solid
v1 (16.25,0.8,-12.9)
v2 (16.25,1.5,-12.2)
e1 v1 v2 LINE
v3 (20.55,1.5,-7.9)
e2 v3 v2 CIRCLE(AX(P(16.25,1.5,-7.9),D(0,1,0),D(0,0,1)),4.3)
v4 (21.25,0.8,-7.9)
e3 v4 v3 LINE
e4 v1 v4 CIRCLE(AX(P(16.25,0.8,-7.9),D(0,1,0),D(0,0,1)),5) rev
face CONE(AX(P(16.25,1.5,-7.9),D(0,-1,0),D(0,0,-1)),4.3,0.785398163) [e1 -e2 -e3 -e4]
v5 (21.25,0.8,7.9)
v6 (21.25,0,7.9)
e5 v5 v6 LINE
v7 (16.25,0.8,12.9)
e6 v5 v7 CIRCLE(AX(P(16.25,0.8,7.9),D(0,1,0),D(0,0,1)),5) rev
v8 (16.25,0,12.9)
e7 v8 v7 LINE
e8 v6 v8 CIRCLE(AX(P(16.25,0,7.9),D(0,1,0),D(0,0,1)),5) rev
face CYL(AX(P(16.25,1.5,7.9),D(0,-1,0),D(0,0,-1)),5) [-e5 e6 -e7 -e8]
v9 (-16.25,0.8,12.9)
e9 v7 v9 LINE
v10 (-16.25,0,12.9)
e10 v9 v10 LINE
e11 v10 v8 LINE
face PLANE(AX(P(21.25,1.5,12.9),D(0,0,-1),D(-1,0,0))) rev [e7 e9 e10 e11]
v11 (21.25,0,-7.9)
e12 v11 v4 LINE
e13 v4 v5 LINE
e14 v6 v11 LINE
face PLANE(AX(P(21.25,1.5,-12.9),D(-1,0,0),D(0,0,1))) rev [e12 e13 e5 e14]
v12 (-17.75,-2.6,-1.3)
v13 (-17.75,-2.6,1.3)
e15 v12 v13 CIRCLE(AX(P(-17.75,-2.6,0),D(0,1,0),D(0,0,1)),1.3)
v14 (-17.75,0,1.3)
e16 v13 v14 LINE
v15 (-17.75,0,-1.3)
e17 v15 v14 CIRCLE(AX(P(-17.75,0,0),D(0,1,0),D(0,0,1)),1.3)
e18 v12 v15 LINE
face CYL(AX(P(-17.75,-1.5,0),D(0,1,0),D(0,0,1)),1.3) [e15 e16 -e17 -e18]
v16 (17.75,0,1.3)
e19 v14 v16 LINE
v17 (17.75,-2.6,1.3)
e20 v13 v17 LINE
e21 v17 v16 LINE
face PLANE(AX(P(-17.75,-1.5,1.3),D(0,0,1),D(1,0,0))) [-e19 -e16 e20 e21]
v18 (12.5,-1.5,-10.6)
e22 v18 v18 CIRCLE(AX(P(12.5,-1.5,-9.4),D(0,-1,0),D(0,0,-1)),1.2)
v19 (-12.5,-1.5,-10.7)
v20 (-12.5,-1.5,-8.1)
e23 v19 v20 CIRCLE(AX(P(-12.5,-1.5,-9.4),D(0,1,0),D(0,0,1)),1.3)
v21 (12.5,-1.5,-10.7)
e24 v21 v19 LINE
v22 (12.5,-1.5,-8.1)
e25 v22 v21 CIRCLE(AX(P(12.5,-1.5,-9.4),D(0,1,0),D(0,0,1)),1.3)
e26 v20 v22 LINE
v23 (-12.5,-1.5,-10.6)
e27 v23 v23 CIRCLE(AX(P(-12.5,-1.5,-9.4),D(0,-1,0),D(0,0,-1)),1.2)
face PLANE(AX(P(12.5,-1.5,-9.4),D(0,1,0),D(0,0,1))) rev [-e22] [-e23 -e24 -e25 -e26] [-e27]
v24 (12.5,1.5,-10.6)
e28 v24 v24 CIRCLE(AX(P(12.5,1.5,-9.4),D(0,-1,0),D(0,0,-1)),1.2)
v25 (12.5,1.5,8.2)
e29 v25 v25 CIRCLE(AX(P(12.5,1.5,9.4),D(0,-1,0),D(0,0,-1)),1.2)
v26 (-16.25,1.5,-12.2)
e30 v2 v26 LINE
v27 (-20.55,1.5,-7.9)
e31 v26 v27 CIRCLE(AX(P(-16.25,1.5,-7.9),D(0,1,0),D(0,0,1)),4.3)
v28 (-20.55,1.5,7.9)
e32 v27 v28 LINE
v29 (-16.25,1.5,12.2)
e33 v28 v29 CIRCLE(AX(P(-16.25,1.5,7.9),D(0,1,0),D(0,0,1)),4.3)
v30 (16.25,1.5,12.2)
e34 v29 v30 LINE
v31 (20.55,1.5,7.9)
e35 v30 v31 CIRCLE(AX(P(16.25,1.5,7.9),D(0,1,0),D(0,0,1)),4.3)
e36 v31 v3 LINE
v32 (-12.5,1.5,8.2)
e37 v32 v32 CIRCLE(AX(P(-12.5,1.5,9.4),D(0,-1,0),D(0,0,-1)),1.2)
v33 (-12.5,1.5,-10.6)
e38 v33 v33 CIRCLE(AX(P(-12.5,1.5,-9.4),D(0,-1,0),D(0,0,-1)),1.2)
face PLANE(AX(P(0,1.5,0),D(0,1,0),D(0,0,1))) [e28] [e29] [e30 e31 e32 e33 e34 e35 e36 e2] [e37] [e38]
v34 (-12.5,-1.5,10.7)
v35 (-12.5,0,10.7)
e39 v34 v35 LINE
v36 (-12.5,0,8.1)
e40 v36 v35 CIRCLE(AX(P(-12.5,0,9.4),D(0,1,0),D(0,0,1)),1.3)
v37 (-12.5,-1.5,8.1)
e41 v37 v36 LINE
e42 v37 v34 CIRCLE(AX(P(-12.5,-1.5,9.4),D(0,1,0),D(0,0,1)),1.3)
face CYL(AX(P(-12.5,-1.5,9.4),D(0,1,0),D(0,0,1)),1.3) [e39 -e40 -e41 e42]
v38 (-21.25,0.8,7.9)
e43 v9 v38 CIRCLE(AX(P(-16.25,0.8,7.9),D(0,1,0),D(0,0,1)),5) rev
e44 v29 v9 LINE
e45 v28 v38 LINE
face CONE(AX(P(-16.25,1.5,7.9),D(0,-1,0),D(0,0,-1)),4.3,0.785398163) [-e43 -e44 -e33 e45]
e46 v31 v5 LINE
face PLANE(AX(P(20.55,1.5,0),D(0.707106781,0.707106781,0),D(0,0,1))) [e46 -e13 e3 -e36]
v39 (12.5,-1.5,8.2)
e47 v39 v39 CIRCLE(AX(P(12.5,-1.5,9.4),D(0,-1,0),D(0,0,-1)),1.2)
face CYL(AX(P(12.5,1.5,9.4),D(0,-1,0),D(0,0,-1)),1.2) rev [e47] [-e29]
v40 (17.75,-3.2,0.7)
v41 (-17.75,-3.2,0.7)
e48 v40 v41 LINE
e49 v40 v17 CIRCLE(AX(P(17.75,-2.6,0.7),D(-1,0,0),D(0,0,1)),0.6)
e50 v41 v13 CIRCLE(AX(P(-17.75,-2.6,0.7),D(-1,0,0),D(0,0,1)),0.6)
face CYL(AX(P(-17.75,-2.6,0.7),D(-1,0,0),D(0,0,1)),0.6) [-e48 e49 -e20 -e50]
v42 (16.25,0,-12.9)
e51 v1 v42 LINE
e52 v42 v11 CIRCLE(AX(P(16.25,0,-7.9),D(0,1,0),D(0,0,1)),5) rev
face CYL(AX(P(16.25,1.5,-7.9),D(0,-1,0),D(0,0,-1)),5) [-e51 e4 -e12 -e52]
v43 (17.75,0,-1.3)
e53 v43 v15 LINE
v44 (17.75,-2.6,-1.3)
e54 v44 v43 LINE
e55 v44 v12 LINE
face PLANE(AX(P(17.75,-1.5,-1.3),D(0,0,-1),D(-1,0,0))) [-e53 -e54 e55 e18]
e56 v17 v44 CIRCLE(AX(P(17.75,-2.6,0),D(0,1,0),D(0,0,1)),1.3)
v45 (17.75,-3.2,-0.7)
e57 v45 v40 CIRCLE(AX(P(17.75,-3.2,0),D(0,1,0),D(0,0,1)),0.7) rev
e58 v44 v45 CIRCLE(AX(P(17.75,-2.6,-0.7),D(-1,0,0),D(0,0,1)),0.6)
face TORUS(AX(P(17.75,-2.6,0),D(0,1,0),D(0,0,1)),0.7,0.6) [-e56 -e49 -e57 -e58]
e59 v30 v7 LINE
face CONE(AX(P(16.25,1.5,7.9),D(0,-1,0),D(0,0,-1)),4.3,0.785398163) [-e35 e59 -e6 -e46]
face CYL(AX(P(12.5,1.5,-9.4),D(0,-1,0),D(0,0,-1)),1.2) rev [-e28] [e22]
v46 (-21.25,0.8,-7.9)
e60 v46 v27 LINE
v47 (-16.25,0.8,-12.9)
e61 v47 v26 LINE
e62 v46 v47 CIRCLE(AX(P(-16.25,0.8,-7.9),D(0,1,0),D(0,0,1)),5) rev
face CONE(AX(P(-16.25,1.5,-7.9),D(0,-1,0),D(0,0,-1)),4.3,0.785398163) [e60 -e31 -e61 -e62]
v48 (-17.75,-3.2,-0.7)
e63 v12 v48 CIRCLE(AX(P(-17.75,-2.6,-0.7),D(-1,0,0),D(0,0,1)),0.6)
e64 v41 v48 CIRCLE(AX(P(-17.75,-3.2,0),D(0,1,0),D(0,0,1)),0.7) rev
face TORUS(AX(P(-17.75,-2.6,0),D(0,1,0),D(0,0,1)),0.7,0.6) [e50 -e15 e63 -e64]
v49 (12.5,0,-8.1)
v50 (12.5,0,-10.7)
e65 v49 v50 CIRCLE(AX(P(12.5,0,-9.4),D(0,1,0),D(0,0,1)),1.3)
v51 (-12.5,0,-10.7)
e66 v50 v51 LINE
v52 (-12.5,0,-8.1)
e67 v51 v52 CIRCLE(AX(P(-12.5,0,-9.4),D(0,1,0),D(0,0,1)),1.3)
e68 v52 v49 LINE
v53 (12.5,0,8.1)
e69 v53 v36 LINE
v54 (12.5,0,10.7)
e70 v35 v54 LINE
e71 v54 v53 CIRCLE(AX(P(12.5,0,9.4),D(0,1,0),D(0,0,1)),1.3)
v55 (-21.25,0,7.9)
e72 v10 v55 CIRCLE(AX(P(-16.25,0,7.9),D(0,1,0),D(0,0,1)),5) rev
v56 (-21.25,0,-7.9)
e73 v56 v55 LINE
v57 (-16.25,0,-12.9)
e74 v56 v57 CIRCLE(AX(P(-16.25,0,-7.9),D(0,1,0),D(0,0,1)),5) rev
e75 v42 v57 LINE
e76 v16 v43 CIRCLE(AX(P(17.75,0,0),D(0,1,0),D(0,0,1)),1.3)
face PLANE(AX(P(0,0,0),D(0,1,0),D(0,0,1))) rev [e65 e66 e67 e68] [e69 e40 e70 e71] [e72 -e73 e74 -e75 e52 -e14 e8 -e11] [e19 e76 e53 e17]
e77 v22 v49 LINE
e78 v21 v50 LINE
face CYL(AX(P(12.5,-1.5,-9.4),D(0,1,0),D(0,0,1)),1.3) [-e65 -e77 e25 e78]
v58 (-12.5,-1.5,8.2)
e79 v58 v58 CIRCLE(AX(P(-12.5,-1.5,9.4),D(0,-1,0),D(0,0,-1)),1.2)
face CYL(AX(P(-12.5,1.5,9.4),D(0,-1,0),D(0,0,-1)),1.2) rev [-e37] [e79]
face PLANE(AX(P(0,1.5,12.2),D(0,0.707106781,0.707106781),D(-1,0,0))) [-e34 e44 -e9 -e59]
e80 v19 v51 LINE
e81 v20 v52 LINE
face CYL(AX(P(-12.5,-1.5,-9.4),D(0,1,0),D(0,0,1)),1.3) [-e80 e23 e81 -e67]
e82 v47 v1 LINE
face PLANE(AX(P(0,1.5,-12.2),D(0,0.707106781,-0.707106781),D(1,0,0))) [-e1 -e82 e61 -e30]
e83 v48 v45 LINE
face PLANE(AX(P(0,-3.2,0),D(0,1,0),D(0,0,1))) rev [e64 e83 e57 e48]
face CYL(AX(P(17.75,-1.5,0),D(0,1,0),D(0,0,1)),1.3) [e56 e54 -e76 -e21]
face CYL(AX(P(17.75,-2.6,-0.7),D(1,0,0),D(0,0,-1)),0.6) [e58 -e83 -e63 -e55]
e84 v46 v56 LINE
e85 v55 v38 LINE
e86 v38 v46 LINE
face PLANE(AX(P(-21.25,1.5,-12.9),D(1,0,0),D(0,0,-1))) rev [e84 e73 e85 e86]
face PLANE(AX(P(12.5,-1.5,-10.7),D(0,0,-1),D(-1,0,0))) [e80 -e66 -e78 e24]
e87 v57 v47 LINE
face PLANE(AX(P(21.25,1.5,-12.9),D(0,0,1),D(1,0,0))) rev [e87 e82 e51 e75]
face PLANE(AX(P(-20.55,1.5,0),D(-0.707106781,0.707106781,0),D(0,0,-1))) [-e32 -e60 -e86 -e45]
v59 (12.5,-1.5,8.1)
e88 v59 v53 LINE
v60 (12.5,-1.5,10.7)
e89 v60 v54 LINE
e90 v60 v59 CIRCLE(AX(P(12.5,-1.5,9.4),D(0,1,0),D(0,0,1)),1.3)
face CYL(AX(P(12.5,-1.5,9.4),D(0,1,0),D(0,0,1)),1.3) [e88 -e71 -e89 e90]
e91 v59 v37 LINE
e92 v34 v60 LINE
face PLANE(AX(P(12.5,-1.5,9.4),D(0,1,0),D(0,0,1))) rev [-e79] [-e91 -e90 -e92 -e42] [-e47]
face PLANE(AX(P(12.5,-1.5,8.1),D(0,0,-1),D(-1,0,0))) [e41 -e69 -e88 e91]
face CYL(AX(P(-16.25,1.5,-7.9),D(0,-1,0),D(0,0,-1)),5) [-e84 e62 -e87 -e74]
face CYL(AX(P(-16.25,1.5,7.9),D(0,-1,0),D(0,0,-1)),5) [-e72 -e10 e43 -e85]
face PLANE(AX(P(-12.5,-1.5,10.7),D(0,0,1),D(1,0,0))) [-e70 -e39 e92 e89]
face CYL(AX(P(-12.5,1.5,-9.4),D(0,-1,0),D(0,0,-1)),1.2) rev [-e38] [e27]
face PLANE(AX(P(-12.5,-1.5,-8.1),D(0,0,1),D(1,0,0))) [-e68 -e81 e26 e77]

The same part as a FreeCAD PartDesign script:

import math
import FreeCAD as App
import Part
import Sketcher
from FreeCAD import Vector
Q = App.Units.Quantity


def edges_at(feature, points):
    """Names of the edges that pass closest to the given points."""
    edges = feature.Shape.Edges
    near = lambda p: min(range(len(edges)), key=lambda i: edges[i].distToShape(Part.Vertex(*p))[0])
    return sorted({f"Edge{near(p) + 1}" for p in points})

doc = App.newDocument("Part")
params = doc.addObject("Spreadsheet::Sheet", "Params")
for row, (alias, value) in enumerate([
    ("sketch1_width", "42.5 mm"),
    ("sketch1_height", "25.8 mm"),
    ("pad1_length", "1.5 mm"),
    ("fillet_radius", "5 mm"),
    ("chamfer_size", "0.7 mm"),
    ("sketch2_radius", "1.3 mm"),
    ("sketch2_width", "25 mm"),
    ("sketch2_width2", "35.5 mm"),
    ("pad2_length", "1.5 mm"),
    ("sketch3_radius", "1.3 mm"),
    ("sketch3_width", "35.5 mm"),
    ("pad3_length", "1.7 mm"),
    ("fillet2_radius", "0.6 mm"),
    ("sketch4_diameter", "2.4 mm"),
], start=1):
    params.set(f"A{row}", alias)
    params.set(f"B{row}", "=" + value)
    params.setAlias(f"B{row}", alias)

body = doc.addObject("PartDesign::Body", "Body")

sketch1 = body.newObject("Sketcher::SketchObject", "Sketch")
sketch1.AttachmentSupport = (doc.getObject("XZ_Plane"), [""])
sketch1.MapMode = "FlatFace"
sketch1.addGeometry(Part.LineSegment(Vector(-21.25, -12.9, 0), Vector(-21.25, 12.9, 0)), False)
sketch1.addGeometry(Part.LineSegment(Vector(-21.25, 12.9, 0), Vector(21.25, 12.9, 0)), False)
sketch1.addGeometry(Part.LineSegment(Vector(21.25, 12.9, 0), Vector(21.25, -12.9, 0)), False)
sketch1.addGeometry(Part.LineSegment(Vector(21.25, -12.9, 0), Vector(-21.25, -12.9, 0)), False)
sketch1.addConstraint(Sketcher.Constraint("Coincident", 0, 2, 1, 1))
sketch1.addConstraint(Sketcher.Constraint("Coincident", 1, 2, 2, 1))
sketch1.addConstraint(Sketcher.Constraint("Coincident", 2, 2, 3, 1))
sketch1.addConstraint(Sketcher.Constraint("Coincident", 3, 2, 0, 1))
sketch1.addConstraint(Sketcher.Constraint("Vertical", 0))
sketch1.addConstraint(Sketcher.Constraint("Horizontal", 1))
sketch1.addConstraint(Sketcher.Constraint("Vertical", 2))
sketch1.addConstraint(Sketcher.Constraint("Horizontal", 3))
sketch1.addConstraint(Sketcher.Constraint("Symmetric", 0, 2, 2, 2, -1, 1))
sketch1.addConstraint(Sketcher.Constraint("DistanceX", 1, 1, 1, 2, Q("42.5 mm")))
sketch1.addConstraint(Sketcher.Constraint("DistanceY", 0, 1, 0, 2, Q("25.8 mm")))
sketch1.setExpression("Constraints[9]", "Params.sketch1_width")
sketch1.setExpression("Constraints[10]", "Params.sketch1_height")
pad1 = body.newObject("PartDesign::Pad", "Pad")
pad1.Profile = sketch1
pad1.setExpression("Length", "Params.pad1_length")
pad1.Reversed = True
doc.recompute()

fillet = body.newObject("PartDesign::Fillet", "Fillet")
fillet.Base = (pad1, edges_at(pad1, [
    (21.25, 0.75, -12.9),
    (21.25, 0.75, 12.9),
    (-21.25, 0.75, 12.9),
    (-21.25, 0.75, -12.9),
]))
fillet.setExpression("Radius", "Params.fillet_radius")
doc.recompute()

chamfer = body.newObject("PartDesign::Chamfer", "Chamfer")
chamfer.Base = (fillet, edges_at(fillet, [
    (21.25, 1.5, 0),
    (0, 1.5, 12.9),
    (0, 1.5, -12.9),
    (-21.25, 1.5, 0),
    (-19.786, 1.5, 11.436),
    (-19.786, 1.5, -11.436),
    (19.786, 1.5, -11.436),
    (19.786, 1.5, 11.436),
]))
chamfer.setExpression("Size", "Params.chamfer_size")

sketch2 = body.newObject("Sketcher::SketchObject", "Sketch001")
sketch2.AttachmentSupport = (doc.getObject("XZ_Plane"), [""])
sketch2.MapMode = "FlatFace"
sketch2.addGeometry(Part.LineSegment(Vector(17.75, -1.3, 0), Vector(-17.75, -1.3, 0)), False)
sketch2.addGeometry(Part.ArcOfCircle(Part.Circle(Vector(-17.75, 0, 0), Vector(0, 0, 1), 1.3), math.radians(90), math.radians(270)), False)
sketch2.addGeometry(Part.LineSegment(Vector(-17.75, 1.3, 0), Vector(17.75, 1.3, 0)), False)
sketch2.addGeometry(Part.ArcOfCircle(Part.Circle(Vector(17.75, 0, 0), Vector(0, 0, 1), 1.3), math.radians(-90), math.radians(90)), False)
sketch2.addGeometry(Part.LineSegment(Vector(12.5, -10.7, 0), Vector(-12.5, -10.7, 0)), False)
sketch2.addGeometry(Part.ArcOfCircle(Part.Circle(Vector(-12.5, -9.4, 0), Vector(0, 0, 1), 1.3), math.radians(90), math.radians(270)), False)
sketch2.addGeometry(Part.LineSegment(Vector(-12.5, -8.1, 0), Vector(12.5, -8.1, 0)), False)
sketch2.addGeometry(Part.ArcOfCircle(Part.Circle(Vector(12.5, -9.4, 0), Vector(0, 0, 1), 1.3), math.radians(-90), math.radians(90)), False)
sketch2.addGeometry(Part.LineSegment(Vector(12.5, 8.1, 0), Vector(-12.5, 8.1, 0)), False)
sketch2.addGeometry(Part.ArcOfCircle(Part.Circle(Vector(-12.5, 9.4, 0), Vector(0, 0, 1), 1.3), math.radians(90), math.radians(270)), False)
sketch2.addGeometry(Part.LineSegment(Vector(-12.5, 10.7, 0), Vector(12.5, 10.7, 0)), False)
sketch2.addGeometry(Part.ArcOfCircle(Part.Circle(Vector(12.5, 9.4, 0), Vector(0, 0, 1), 1.3), math.radians(-90), math.radians(90)), False)
sketch2.addConstraint(Sketcher.Constraint("Tangent", 0, 2, 1, 2))
sketch2.addConstraint(Sketcher.Constraint("Tangent", 1, 1, 2, 1))
sketch2.addConstraint(Sketcher.Constraint("Tangent", 2, 2, 3, 2))
sketch2.addConstraint(Sketcher.Constraint("Tangent", 3, 1, 0, 1))
sketch2.addConstraint(Sketcher.Constraint("Tangent", 4, 2, 5, 2))
sketch2.addConstraint(Sketcher.Constraint("Tangent", 5, 1, 6, 1))
sketch2.addConstraint(Sketcher.Constraint("Tangent", 6, 2, 7, 2))
sketch2.addConstraint(Sketcher.Constraint("Tangent", 7, 1, 4, 1))
sketch2.addConstraint(Sketcher.Constraint("Tangent", 8, 2, 9, 2))
sketch2.addConstraint(Sketcher.Constraint("Tangent", 9, 1, 10, 1))
sketch2.addConstraint(Sketcher.Constraint("Tangent", 10, 2, 11, 2))
sketch2.addConstraint(Sketcher.Constraint("Tangent", 11, 1, 8, 1))
sketch2.addConstraint(Sketcher.Constraint("Horizontal", 0))
sketch2.addConstraint(Sketcher.Constraint("Horizontal", 2))
sketch2.addConstraint(Sketcher.Constraint("Horizontal", 4))
sketch2.addConstraint(Sketcher.Constraint("Horizontal", 6))
sketch2.addConstraint(Sketcher.Constraint("Horizontal", 8))
sketch2.addConstraint(Sketcher.Constraint("Horizontal", 10))
sketch2.addConstraint(Sketcher.Constraint("Equal", 3, 5))
sketch2.addConstraint(Sketcher.Constraint("Equal", 7, 9))
sketch2.addConstraint(Sketcher.Constraint("Symmetric", 1, 3, 3, 3, -1, 1))
sketch2.addConstraint(Sketcher.Constraint("Symmetric", 7, 3, 9, 3, -1, 1))
sketch2.addConstraint(Sketcher.Constraint("Vertical", 5, 3, 9, 3))
sketch2.addConstraint(Sketcher.Constraint("Vertical", 7, 3, 11, 3))
sketch2.addConstraint(Sketcher.Constraint("Radius", 1, Q("1.3 mm")))
sketch2.addConstraint(Sketcher.Constraint("DistanceX", 4, 2, 4, 1, Q("25 mm")))
sketch2.addConstraint(Sketcher.Constraint("DistanceX", 0, 2, 0, 1, Q("35.5 mm")))
sketch2.addConstraint(Sketcher.Constraint("DistanceY", 4, 2, 1, 1, Q("12 mm")))
sketch2.setExpression("Constraints[24]", "Params.sketch2_radius")
sketch2.setExpression("Constraints[25]", "Params.sketch2_width")
sketch2.setExpression("Constraints[26]", "Params.sketch2_width2")
pad2 = body.newObject("PartDesign::Pad", "Pad001")
pad2.Profile = sketch2
pad2.setExpression("Length", "Params.pad2_length")

sketch3 = body.newObject("Sketcher::SketchObject", "Sketch002")
sketch3.AttachmentSupport = (doc.getObject("XZ_Plane"), [""])
sketch3.MapMode = "FlatFace"
sketch3.AttachmentOffset = App.Placement(Vector(0, 0, 1.5), App.Rotation())
sketch3.addGeometry(Part.LineSegment(Vector(17.75, 1.3, 0), Vector(-17.75, 1.3, 0)), False)
sketch3.addGeometry(Part.ArcOfCircle(Part.Circle(Vector(-17.75, 0, 0), Vector(0, 0, 1), 1.3), math.radians(90), math.radians(270)), False)
sketch3.addGeometry(Part.LineSegment(Vector(-17.75, -1.3, 0), Vector(17.75, -1.3, 0)), False)
sketch3.addGeometry(Part.ArcOfCircle(Part.Circle(Vector(17.75, 0, 0), Vector(0, 0, 1), 1.3), math.radians(-90), math.radians(90)), False)
sketch3.addConstraint(Sketcher.Constraint("Tangent", 0, 2, 1, 1))
sketch3.addConstraint(Sketcher.Constraint("Tangent", 1, 2, 2, 1))
sketch3.addConstraint(Sketcher.Constraint("Tangent", 2, 2, 3, 1))
sketch3.addConstraint(Sketcher.Constraint("Tangent", 3, 2, 0, 1))
sketch3.addConstraint(Sketcher.Constraint("Horizontal", 0))
sketch3.addConstraint(Sketcher.Constraint("Horizontal", 2))
sketch3.addConstraint(Sketcher.Constraint("Symmetric", 1, 3, 3, 3, -1, 1))
sketch3.addConstraint(Sketcher.Constraint("Radius", 1, Q("1.3 mm")))
sketch3.addConstraint(Sketcher.Constraint("DistanceX", 0, 2, 0, 1, Q("35.5 mm")))
sketch3.setExpression("Constraints[7]", "Params.sketch3_radius")
sketch3.setExpression("Constraints[8]", "Params.sketch3_width")
pad3 = body.newObject("PartDesign::Pad", "Pad002")
pad3.Profile = sketch3
pad3.setExpression("Length", "Params.pad3_length")
doc.recompute()

fillet2 = body.newObject("PartDesign::Fillet", "Fillet001")
fillet2.Base = (pad3, edges_at(pad3, [
    (19.05, -3.2, 0),
    (0, -3.2, -1.3),
    (-19.05, -3.2, 0),
    (0, -3.2, 1.3),
]))
fillet2.setExpression("Radius", "Params.fillet2_radius")

sketch4 = body.newObject("Sketcher::SketchObject", "Sketch003")
sketch4.AttachmentSupport = (doc.getObject("XZ_Plane"), [""])
sketch4.MapMode = "FlatFace"
sketch4.AttachmentOffset = App.Placement(Vector(0, 0, 1.5), App.Rotation())
sketch4.addGeometry(Part.Circle(Vector(-12.5, 9.4, 0), Vector(0, 0, 1), 1.2), False)
sketch4.addGeometry(Part.Circle(Vector(12.5, 9.4, 0), Vector(0, 0, 1), 1.2), False)
sketch4.addGeometry(Part.Circle(Vector(12.5, -9.4, 0), Vector(0, 0, 1), 1.2), False)
sketch4.addGeometry(Part.Circle(Vector(-12.5, -9.4, 0), Vector(0, 0, 1), 1.2), False)
sketch4.addConstraint(Sketcher.Constraint("Equal", 0, 1))
sketch4.addConstraint(Sketcher.Constraint("Equal", 1, 2))
sketch4.addConstraint(Sketcher.Constraint("Equal", 2, 3))
sketch4.addConstraint(Sketcher.Constraint("Symmetric", 0, 3, 2, 3, -1, 1))
sketch4.addConstraint(Sketcher.Constraint("Symmetric", 1, 3, 3, 3, -1, 1))
sketch4.addConstraint(Sketcher.Constraint("Symmetric", 0, 3, 1, 3, -2))
sketch4.addConstraint(Sketcher.Constraint("Diameter", 0, Q("2.4 mm")))
sketch4.addConstraint(Sketcher.Constraint("DistanceX", 0, 3, 1, 3, Q("25 mm")))
sketch4.addConstraint(Sketcher.Constraint("DistanceY", -1, 1, 0, 3, Q("9.4 mm")))
sketch4.setExpression("Constraints[6]", "Params.sketch4_diameter")
pocket1 = body.newObject("PartDesign::Pocket", "Pocket")
pocket1.Profile = sketch4
pocket1.Type = "ThroughAll"

doc.recompute()
